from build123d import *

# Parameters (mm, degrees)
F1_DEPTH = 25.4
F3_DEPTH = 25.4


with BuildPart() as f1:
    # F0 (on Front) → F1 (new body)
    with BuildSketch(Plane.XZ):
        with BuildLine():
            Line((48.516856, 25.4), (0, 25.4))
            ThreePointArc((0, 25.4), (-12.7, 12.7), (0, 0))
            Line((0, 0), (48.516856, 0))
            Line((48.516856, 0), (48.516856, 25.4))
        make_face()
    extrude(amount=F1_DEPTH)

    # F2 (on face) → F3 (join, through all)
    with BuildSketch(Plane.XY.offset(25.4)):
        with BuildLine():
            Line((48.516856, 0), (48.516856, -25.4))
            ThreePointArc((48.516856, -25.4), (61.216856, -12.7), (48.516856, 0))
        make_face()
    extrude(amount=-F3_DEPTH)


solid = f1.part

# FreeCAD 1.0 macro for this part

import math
import FreeCAD as App
import Part
import Sketcher
from FreeCAD import Vector
Q = App.Units.Quantity

doc = App.newDocument("Part")
body = doc.addObject("PartDesign::Body", "Body")

sketch1 = body.newObject("Sketcher::SketchObject", "Sketch")
sketch1.AttachmentSupport = (doc.getObject("XZ_Plane"), [""])
sketch1.MapMode = "FlatFace"
sketch1.addGeometry([
    Part.LineSegment(Vector(49, 25, 0), Vector(0, 25, 0)),
    Part.ArcOfCircle(Part.Circle(Vector(0, 13, 0), Vector(0, 0, 1), 13), math.radians(90), math.radians(270)),
    Part.LineSegment(Vector(0, 0, 0), Vector(49, 0, 0)),
    Part.LineSegment(Vector(49, 0, 0), Vector(49, 25, 0)),
], False)
sketch1.addConstraint([
    Sketcher.Constraint("Tangent", 0, 2, 1, 1),
    Sketcher.Constraint("Tangent", 1, 2, 2, 1),
    Sketcher.Constraint("Coincident", 2, 2, 3, 1),
    Sketcher.Constraint("Coincident", 3, 2, 0, 1),
    Sketcher.Constraint("Horizontal", 0),
    Sketcher.Constraint("Horizontal", 2),
    Sketcher.Constraint("Vertical", 3),
    Sketcher.Constraint("Coincident", 1, 2, -1, 1),
    Sketcher.Constraint("Radius", 1, Q("0.5 in")),
    Sketcher.Constraint("DistanceX", 0, 2, 0, 1, 48.516856),
])
pad1 = body.newObject("PartDesign::Pad", "Pad")
pad1.Profile = sketch1
pad1.Length = Q("1 in")

sketch2 = body.newObject("Sketcher::SketchObject", "Sketch001")
sketch2.AttachmentSupport = (doc.getObject("XY_Plane"), [""])
sketch2.MapMode = "FlatFace"
sketch2.AttachmentOffset = App.Placement(Vector(0, 0, 1 * 25.4), App.Rotation())
sketch2.addGeometry([
    Part.LineSegment(Vector(49, 0, 0), Vector(49, -25, 0)),
    Part.ArcOfCircle(Part.Circle(Vector(49, -13, 0), Vector(0, 0, 1), 13), math.radians(-90), math.radians(90)),
], False)
sketch2.addConstraint([
    Sketcher.Constraint("Coincident", 0, 1, 1, 2),
    Sketcher.Constraint("Coincident", 1, 1, 0, 2),
    Sketcher.Constraint("Vertical", 0),
    Sketcher.Constraint("PointOnObject", 0, 1, -1),
    Sketcher.Constraint("Vertical", 1, 3, 0, 1),
    Sketcher.Constraint("Radius", 1, Q("0.5 in")),
    Sketcher.Constraint("DistanceX", -1, 1, 1, 3, 48.516856),
])
pad2 = body.newObject("PartDesign::Pad", "Pad001")
pad2.Profile = sketch2
pad2.Length = Q("1 in")
pad2.Reversed = True

doc.recompute()
